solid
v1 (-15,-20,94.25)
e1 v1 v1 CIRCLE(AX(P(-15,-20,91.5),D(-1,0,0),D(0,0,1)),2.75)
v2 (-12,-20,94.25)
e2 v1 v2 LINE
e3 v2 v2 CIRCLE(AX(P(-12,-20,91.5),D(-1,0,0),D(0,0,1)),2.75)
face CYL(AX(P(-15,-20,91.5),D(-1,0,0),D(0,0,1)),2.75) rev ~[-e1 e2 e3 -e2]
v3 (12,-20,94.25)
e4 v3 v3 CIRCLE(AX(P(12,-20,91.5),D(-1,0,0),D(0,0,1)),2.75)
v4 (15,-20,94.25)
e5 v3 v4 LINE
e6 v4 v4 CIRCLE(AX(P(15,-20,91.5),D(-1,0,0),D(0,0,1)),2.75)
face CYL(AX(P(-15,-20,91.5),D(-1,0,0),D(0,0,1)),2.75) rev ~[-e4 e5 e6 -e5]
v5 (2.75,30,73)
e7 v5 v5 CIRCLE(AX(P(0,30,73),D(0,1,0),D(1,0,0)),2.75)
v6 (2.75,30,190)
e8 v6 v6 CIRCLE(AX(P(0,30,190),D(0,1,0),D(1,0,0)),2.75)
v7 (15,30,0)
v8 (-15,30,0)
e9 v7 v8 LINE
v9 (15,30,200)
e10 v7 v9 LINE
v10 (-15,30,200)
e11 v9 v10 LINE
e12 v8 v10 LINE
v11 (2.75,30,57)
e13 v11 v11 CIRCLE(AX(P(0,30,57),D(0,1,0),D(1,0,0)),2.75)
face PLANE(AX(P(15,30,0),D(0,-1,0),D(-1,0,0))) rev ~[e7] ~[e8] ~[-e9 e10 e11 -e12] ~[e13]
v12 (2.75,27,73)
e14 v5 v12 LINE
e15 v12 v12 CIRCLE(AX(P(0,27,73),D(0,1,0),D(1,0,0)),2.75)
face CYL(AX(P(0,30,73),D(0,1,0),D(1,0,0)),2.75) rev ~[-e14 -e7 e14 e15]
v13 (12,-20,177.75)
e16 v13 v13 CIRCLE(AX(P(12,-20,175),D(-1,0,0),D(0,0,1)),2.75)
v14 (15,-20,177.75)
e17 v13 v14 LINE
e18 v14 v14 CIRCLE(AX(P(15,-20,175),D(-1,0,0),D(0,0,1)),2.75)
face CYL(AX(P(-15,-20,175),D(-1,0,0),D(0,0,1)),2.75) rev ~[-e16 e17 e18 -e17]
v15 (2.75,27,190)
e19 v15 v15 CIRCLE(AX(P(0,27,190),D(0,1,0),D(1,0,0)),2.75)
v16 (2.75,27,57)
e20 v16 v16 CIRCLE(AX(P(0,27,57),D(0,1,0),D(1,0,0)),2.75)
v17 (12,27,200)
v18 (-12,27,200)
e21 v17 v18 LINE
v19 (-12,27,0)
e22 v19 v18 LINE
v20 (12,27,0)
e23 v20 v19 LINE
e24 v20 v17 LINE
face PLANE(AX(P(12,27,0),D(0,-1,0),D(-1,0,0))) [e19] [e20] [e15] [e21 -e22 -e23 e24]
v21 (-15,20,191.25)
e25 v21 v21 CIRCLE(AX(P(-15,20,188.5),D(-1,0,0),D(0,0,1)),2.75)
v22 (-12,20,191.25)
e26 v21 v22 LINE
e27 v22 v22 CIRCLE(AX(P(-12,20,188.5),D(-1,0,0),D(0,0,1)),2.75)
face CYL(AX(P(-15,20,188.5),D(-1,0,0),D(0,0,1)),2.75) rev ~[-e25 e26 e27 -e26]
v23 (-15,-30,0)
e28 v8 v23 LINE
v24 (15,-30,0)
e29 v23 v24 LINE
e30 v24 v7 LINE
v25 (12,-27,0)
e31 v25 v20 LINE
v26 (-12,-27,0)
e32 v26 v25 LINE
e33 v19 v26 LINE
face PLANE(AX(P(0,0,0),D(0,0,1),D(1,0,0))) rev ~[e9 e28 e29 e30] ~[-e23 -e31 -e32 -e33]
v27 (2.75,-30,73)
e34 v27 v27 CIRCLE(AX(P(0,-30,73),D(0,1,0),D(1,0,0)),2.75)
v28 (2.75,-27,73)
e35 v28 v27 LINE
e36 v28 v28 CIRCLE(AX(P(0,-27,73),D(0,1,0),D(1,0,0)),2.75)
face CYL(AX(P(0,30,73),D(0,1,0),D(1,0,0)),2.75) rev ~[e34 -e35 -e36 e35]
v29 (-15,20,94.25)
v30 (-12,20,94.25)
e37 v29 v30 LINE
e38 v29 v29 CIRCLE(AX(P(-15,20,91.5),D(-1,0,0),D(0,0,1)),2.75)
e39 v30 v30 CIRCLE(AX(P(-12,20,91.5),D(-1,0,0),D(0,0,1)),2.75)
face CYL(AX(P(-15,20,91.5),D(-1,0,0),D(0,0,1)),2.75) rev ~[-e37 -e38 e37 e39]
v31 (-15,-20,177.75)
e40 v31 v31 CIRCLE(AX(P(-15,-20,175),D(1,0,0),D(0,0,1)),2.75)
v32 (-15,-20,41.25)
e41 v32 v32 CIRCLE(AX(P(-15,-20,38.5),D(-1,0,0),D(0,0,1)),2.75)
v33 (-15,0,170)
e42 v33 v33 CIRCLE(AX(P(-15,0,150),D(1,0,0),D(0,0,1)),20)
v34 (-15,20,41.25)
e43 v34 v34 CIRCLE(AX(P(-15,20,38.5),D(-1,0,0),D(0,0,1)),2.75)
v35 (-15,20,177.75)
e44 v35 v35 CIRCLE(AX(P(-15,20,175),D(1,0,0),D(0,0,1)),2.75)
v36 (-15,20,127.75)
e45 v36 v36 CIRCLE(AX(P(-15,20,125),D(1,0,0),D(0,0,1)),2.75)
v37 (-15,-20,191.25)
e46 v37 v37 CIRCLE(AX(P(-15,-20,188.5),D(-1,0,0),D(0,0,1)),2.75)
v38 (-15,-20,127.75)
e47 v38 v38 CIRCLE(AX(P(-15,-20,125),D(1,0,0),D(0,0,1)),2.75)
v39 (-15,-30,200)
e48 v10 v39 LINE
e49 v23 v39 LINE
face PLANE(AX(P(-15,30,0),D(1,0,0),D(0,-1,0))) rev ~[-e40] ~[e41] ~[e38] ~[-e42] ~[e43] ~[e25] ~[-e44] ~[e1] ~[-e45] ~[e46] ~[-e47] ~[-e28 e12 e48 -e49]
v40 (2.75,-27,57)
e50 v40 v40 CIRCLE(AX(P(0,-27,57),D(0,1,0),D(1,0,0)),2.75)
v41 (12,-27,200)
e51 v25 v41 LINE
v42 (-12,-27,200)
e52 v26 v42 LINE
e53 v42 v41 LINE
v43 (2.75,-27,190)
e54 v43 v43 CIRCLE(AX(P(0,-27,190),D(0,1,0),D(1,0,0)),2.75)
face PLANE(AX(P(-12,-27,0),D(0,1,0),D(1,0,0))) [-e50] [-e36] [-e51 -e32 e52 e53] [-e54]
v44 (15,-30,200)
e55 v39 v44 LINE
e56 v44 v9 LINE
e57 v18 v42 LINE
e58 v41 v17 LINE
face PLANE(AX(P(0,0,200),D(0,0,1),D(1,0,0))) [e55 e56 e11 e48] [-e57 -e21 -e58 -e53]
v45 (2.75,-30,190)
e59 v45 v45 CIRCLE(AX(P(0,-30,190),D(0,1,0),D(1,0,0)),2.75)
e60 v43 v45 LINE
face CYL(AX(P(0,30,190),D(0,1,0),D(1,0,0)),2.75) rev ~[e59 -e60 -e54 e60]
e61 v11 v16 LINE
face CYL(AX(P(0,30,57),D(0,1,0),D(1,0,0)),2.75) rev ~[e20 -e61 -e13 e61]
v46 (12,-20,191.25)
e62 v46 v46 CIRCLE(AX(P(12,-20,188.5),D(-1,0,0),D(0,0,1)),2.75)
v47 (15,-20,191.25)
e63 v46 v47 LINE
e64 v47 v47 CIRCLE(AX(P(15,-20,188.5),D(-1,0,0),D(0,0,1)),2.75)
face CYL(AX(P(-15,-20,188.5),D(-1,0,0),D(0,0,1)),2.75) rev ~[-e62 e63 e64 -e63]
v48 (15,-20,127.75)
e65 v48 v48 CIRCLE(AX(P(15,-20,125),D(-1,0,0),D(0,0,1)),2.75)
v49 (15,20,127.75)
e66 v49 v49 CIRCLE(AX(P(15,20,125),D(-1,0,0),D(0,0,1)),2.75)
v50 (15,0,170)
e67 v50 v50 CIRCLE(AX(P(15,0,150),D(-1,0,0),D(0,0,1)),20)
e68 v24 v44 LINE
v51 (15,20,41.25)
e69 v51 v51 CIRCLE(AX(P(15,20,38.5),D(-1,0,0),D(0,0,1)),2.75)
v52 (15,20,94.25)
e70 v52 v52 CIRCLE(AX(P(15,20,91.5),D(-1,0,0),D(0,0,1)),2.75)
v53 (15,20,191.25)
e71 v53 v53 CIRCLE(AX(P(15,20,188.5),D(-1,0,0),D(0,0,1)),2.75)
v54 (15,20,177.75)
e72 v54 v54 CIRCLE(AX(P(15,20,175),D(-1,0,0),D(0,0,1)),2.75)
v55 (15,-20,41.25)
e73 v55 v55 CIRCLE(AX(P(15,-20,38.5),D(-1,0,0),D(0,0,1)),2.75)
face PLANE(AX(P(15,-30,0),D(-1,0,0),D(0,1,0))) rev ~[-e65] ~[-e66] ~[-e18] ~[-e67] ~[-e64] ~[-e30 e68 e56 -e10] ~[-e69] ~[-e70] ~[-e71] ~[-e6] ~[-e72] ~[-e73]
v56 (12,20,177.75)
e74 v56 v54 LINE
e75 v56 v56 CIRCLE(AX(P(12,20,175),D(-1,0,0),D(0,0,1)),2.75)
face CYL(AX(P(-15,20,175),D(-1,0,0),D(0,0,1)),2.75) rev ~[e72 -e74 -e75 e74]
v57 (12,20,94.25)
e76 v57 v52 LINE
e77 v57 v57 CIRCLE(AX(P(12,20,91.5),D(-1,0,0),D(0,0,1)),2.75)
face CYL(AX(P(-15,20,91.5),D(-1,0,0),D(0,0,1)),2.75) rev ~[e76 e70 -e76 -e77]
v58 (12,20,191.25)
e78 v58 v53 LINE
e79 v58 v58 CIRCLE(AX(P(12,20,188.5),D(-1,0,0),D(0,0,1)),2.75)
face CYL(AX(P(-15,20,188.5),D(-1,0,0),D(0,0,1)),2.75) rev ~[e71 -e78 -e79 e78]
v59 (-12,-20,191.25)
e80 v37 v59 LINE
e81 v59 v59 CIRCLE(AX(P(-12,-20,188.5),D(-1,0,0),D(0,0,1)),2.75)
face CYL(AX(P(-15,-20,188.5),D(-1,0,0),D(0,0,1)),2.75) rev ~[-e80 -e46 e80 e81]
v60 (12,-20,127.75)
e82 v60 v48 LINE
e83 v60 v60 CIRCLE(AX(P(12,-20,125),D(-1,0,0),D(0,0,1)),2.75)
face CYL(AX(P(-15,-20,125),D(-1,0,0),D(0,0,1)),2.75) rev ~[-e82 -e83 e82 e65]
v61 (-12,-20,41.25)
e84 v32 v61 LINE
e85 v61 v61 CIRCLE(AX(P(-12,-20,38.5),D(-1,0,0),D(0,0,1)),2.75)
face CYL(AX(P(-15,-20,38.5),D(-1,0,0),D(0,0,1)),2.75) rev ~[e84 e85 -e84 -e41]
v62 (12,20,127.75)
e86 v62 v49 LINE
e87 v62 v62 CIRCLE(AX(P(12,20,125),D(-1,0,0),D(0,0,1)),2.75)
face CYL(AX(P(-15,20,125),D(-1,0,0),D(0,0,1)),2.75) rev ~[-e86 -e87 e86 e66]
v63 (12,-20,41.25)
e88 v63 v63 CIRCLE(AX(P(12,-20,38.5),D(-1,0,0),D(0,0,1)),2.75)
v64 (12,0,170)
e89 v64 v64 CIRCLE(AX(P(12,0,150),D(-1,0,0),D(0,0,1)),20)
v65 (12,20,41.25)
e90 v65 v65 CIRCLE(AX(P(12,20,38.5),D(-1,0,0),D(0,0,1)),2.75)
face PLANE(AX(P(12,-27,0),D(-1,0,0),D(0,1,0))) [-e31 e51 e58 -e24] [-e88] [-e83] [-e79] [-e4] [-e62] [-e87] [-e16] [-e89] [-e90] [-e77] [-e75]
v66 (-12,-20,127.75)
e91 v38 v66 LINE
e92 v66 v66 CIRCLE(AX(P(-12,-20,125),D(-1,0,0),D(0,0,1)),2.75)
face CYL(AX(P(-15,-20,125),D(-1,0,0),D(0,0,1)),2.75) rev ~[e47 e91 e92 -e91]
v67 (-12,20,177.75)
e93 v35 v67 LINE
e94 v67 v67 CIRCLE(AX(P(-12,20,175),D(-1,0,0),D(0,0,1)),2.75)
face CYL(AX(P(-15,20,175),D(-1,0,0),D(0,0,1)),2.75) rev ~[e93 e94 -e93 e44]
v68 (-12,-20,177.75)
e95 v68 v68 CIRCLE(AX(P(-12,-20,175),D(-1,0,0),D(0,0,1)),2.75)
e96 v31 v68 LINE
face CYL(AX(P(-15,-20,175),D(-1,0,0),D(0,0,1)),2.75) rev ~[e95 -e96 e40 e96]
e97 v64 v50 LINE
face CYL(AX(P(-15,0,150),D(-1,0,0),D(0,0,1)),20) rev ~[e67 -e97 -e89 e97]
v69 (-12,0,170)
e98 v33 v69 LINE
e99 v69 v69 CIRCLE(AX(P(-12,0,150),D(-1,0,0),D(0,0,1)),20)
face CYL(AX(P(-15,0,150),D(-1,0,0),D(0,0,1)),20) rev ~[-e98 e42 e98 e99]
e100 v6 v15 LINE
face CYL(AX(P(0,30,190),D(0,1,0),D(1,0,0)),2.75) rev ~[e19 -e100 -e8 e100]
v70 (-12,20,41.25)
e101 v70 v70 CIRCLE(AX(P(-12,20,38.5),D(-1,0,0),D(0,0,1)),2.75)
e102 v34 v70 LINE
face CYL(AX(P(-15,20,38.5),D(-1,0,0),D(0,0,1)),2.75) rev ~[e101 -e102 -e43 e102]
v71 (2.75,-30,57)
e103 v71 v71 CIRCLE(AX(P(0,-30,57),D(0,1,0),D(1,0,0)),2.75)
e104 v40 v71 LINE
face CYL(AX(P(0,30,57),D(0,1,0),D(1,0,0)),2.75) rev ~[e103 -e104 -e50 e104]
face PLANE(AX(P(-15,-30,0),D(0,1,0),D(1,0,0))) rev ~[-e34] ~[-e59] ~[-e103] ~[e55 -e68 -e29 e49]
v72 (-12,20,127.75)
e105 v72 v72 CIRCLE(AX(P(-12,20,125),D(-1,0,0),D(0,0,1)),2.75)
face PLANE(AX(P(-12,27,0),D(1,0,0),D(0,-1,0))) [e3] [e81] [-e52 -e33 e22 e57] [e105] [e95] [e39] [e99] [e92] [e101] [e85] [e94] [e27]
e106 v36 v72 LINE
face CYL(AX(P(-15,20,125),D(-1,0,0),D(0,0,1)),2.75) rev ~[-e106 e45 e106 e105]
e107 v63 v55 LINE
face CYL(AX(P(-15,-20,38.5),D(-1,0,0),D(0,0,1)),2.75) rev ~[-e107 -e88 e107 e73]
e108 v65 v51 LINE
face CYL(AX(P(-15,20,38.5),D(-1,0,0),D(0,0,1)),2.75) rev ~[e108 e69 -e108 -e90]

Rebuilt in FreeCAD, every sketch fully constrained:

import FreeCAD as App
import Part
import Sketcher

V = App.Vector

doc = App.newDocument("Part")
body = doc.addObject("PartDesign::Body", "Body")

sketch1 = body.newObject("Sketcher::SketchObject", "Sketch")
sketch1.AttachmentSupport = (doc.getObject("XY_Plane"), [""])
sketch1.MapMode = "FlatFace"
sketch1.addGeometry(Part.LineSegment(V(-15, 30, 0), V(-15, -30, 0)), False)
sketch1.addGeometry(Part.LineSegment(V(-15, -30, 0), V(15, -30, 0)), False)
sketch1.addGeometry(Part.LineSegment(V(15, -30, 0), V(15, 30, 0)), False)
sketch1.addGeometry(Part.LineSegment(V(15, 30, 0), V(-15, 30, 0)), False)
sketch1.addGeometry(Part.LineSegment(V(12, -27, 0), V(-12, -27, 0)), False)
sketch1.addGeometry(Part.LineSegment(V(-12, -27, 0), V(-12, 27, 0)), False)
sketch1.addGeometry(Part.LineSegment(V(-12, 27, 0), V(12, 27, 0)), False)
sketch1.addGeometry(Part.LineSegment(V(12, 27, 0), V(12, -27, 0)), False)
sketch1.addConstraint(Sketcher.Constraint("Coincident", 0, 2, 1, 1))
sketch1.addConstraint(Sketcher.Constraint("Coincident", 1, 2, 2, 1))
sketch1.addConstraint(Sketcher.Constraint("Coincident", 2, 2, 3, 1))
sketch1.addConstraint(Sketcher.Constraint("Coincident", 3, 2, 0, 1))
sketch1.addConstraint(Sketcher.Constraint("Coincident", 4, 2, 5, 1))
sketch1.addConstraint(Sketcher.Constraint("Coincident", 5, 2, 6, 1))
sketch1.addConstraint(Sketcher.Constraint("Coincident", 6, 2, 7, 1))
sketch1.addConstraint(Sketcher.Constraint("Coincident", 7, 2, 4, 1))
sketch1.addConstraint(Sketcher.Constraint("Vertical", 0))
sketch1.addConstraint(Sketcher.Constraint("Horizontal", 1))
sketch1.addConstraint(Sketcher.Constraint("Vertical", 2))
sketch1.addConstraint(Sketcher.Constraint("Horizontal", 3))
sketch1.addConstraint(Sketcher.Constraint("Horizontal", 4))
sketch1.addConstraint(Sketcher.Constraint("Vertical", 5))
sketch1.addConstraint(Sketcher.Constraint("Horizontal", 6))
sketch1.addConstraint(Sketcher.Constraint("Vertical", 7))
sketch1.addConstraint(Sketcher.Constraint("Symmetric", 0, 2, 2, 2, -1, 1))
sketch1.addConstraint(Sketcher.Constraint("Symmetric", 4, 2, 6, 2, -1, 1))
sketch1.addConstraint(Sketcher.Constraint("DistanceX", 1, 1, 1, 2, 30.0))
sketch1.addConstraint(Sketcher.Constraint("DistanceX", 4, 2, 4, 1, 24.0))
sketch1.addConstraint(Sketcher.Constraint("DistanceY", 0, 2, 0, 1, 60.0))
sketch1.addConstraint(Sketcher.Constraint("DistanceY", 5, 1, 5, 2, 54.0))
pad1 = body.newObject("PartDesign::Pad", "Pad")
pad1.Profile = sketch1
pad1.Length = 200

sketch2 = body.newObject("Sketcher::SketchObject", "Sketch001")
sketch2.AttachmentSupport = (doc.getObject("YZ_Plane"), [""])
sketch2.MapMode = "FlatFace"
sketch2.AttachmentOffset = App.Placement(V(0, 0, -15), App.Rotation())
sketch2.addGeometry(Part.Circle(V(20, 188.5, 0), V(0, 0, 1), 2.8), False)
sketch2.addGeometry(Part.Circle(V(-20, 188.5, 0), V(0, 0, 1), 2.8), False)
sketch2.addConstraint(Sketcher.Constraint("Equal", 0, 1))
sketch2.addConstraint(Sketcher.Constraint("Symmetric", 0, 3, 1, 3, -2))
sketch2.addConstraint(Sketcher.Constraint("Diameter", 0, 5.5))
sketch2.addConstraint(Sketcher.Constraint("DistanceX", -1, 1, 0, 3, 20.0))
sketch2.addConstraint(Sketcher.Constraint("DistanceY", -1, 1, 0, 3, 188.5))
pocket1 = body.newObject("PartDesign::Pocket", "Pocket")
pocket1.Profile = sketch2
pocket1.Length = 30
pocket1.Reversed = True

sketch3 = body.newObject("Sketcher::SketchObject", "Sketch002")
sketch3.AttachmentSupport = (doc.getObject("XZ_Plane"), [""])
sketch3.MapMode = "FlatFace"
sketch3.AttachmentOffset = App.Placement(V(0, 0, -30), App.Rotation())
sketch3.addGeometry(Part.Circle(V(0, 73, 0), V(0, 0, 1), 2.8), False)
sketch3.addGeometry(Part.Circle(V(0, 57, 0), V(0, 0, 1), 2.8), False)
sketch3.addGeometry(Part.Circle(V(0, 190, 0), V(0, 0, 1), 2.8), False)
sketch3.addConstraint(Sketcher.Constraint("Equal", 0, 1))
sketch3.addConstraint(Sketcher.Constraint("Equal", 1, 2))
sketch3.addConstraint(Sketcher.Constraint("PointOnObject", 0, 3, -2))
sketch3.addConstraint(Sketcher.Constraint("PointOnObject", 1, 3, -2))
sketch3.addConstraint(Sketcher.Constraint("PointOnObject", 2, 3, -2))
sketch3.addConstraint(Sketcher.Constraint("Diameter", 0, 5.5))
sketch3.addConstraint(Sketcher.Constraint("DistanceY", 1, 3, 0, 3, 16.0))
sketch3.addConstraint(Sketcher.Constraint("DistanceY", -1, 1, 0, 3, 73.0))
sketch3.addConstraint(Sketcher.Constraint("DistanceY", -1, 1, 2, 3, 190.0))
pocket2 = body.newObject("PartDesign::Pocket", "Pocket001")
pocket2.Profile = sketch3
pocket2.Length = 60
pocket2.Reversed = True

sketch4 = body.newObject("Sketcher::SketchObject", "Sketch003")
sketch4.AttachmentSupport = (doc.getObject("YZ_Plane"), [""])
sketch4.MapMode = "FlatFace"
sketch4.AttachmentOffset = App.Placement(V(0, 0, -15), App.Rotation())
sketch4.addGeometry(Part.Circle(V(0, 150, 0), V(0, 0, 1), 20), False)
sketch4.addGeometry(Part.Circle(V(20, 125, 0), V(0, 0, 1), 2.8), False)
sketch4.addGeometry(Part.Circle(V(20, 175, 0), V(0, 0, 1), 2.8), False)
sketch4.addGeometry(Part.Circle(V(-20, 175, 0), V(0, 0, 1), 2.8), False)
sketch4.addGeometry(Part.Circle(V(-20, 125, 0), V(0, 0, 1), 2.8), False)
sketch4.addConstraint(Sketcher.Constraint("Equal", 1, 2))
sketch4.addConstraint(Sketcher.Constraint("Equal", 2, 3))
sketch4.addConstraint(Sketcher.Constraint("Equal", 3, 4))
sketch4.addConstraint(Sketcher.Constraint("Symmetric", 2, 3, 3, 3, -2))
sketch4.addConstraint(Sketcher.Constraint("Symmetric", 1, 3, 4, 3, -2))
sketch4.addConstraint(Sketcher.Constraint("PointOnObject", 0, 3, -2))
sketch4.addConstraint(Sketcher.Constraint("Vertical", 1, 3, 2, 3))
sketch4.addConstraint(Sketcher.Constraint("Diameter", 0, 40.0))
sketch4.addConstraint(Sketcher.Constraint("Diameter", 1, 5.5))
sketch4.addConstraint(Sketcher.Constraint("DistanceY", 1, 3, 2, 3, 50.0))
sketch4.addConstraint(Sketcher.Constraint("DistanceX", 3, 3, 2, 3, 40.0))
sketch4.addConstraint(Sketcher.Constraint("DistanceY", -1, 1, 0, 3, 150.0))
sketch4.addConstraint(Sketcher.Constraint("DistanceY", -1, 1, 1, 3, 125.0))
pocket3 = body.newObject("PartDesign::Pocket", "Pocket002")
pocket3.Profile = sketch4
pocket3.Length = 60
pocket3.Reversed = True

sketch5 = body.newObject("Sketcher::SketchObject", "Sketch004")
sketch5.AttachmentSupport = (doc.getObject("YZ_Plane"), [""])
sketch5.MapMode = "FlatFace"
sketch5.AttachmentOffset = App.Placement(V(0, 0, -15), App.Rotation())
sketch5.addGeometry(Part.Circle(V(20, 38.5, 0), V(0, 0, 1), 2.8), False)
sketch5.addGeometry(Part.Circle(V(20, 91.5, 0), V(0, 0, 1), 2.8), False)
sketch5.addGeometry(Part.Circle(V(-20, 91.5, 0), V(0, 0, 1), 2.8), False)
sketch5.addGeometry(Part.Circle(V(-20, 38.5, 0), V(0, 0, 1), 2.8), False)
sketch5.addConstraint(Sketcher.Constraint("Equal", 0, 1))
sketch5.addConstraint(Sketcher.Constraint("Equal", 1, 2))
sketch5.addConstraint(Sketcher.Constraint("Equal", 2, 3))
sketch5.addConstraint(Sketcher.Constraint("Symmetric", 1, 3, 2, 3, -2))
sketch5.addConstraint(Sketcher.Constraint("Symmetric", 0, 3, 3, 3, -2))
sketch5.addConstraint(Sketcher.Constraint("Vertical", 0, 3, 1, 3))
sketch5.addConstraint(Sketcher.Constraint("Diameter", 0, 5.5))
sketch5.addConstraint(Sketcher.Constraint("DistanceY", 0, 3, 1, 3, 53.0))
sketch5.addConstraint(Sketcher.Constraint("DistanceX", 2, 3, 1, 3, 40.0))
sketch5.addConstraint(Sketcher.Constraint("DistanceY", -1, 1, 0, 3, 38.5))
pocket4 = body.newObject("PartDesign::Pocket", "Pocket003")
pocket4.Profile = sketch5
pocket4.Length = 60
pocket4.Reversed = True

doc.recompute()
